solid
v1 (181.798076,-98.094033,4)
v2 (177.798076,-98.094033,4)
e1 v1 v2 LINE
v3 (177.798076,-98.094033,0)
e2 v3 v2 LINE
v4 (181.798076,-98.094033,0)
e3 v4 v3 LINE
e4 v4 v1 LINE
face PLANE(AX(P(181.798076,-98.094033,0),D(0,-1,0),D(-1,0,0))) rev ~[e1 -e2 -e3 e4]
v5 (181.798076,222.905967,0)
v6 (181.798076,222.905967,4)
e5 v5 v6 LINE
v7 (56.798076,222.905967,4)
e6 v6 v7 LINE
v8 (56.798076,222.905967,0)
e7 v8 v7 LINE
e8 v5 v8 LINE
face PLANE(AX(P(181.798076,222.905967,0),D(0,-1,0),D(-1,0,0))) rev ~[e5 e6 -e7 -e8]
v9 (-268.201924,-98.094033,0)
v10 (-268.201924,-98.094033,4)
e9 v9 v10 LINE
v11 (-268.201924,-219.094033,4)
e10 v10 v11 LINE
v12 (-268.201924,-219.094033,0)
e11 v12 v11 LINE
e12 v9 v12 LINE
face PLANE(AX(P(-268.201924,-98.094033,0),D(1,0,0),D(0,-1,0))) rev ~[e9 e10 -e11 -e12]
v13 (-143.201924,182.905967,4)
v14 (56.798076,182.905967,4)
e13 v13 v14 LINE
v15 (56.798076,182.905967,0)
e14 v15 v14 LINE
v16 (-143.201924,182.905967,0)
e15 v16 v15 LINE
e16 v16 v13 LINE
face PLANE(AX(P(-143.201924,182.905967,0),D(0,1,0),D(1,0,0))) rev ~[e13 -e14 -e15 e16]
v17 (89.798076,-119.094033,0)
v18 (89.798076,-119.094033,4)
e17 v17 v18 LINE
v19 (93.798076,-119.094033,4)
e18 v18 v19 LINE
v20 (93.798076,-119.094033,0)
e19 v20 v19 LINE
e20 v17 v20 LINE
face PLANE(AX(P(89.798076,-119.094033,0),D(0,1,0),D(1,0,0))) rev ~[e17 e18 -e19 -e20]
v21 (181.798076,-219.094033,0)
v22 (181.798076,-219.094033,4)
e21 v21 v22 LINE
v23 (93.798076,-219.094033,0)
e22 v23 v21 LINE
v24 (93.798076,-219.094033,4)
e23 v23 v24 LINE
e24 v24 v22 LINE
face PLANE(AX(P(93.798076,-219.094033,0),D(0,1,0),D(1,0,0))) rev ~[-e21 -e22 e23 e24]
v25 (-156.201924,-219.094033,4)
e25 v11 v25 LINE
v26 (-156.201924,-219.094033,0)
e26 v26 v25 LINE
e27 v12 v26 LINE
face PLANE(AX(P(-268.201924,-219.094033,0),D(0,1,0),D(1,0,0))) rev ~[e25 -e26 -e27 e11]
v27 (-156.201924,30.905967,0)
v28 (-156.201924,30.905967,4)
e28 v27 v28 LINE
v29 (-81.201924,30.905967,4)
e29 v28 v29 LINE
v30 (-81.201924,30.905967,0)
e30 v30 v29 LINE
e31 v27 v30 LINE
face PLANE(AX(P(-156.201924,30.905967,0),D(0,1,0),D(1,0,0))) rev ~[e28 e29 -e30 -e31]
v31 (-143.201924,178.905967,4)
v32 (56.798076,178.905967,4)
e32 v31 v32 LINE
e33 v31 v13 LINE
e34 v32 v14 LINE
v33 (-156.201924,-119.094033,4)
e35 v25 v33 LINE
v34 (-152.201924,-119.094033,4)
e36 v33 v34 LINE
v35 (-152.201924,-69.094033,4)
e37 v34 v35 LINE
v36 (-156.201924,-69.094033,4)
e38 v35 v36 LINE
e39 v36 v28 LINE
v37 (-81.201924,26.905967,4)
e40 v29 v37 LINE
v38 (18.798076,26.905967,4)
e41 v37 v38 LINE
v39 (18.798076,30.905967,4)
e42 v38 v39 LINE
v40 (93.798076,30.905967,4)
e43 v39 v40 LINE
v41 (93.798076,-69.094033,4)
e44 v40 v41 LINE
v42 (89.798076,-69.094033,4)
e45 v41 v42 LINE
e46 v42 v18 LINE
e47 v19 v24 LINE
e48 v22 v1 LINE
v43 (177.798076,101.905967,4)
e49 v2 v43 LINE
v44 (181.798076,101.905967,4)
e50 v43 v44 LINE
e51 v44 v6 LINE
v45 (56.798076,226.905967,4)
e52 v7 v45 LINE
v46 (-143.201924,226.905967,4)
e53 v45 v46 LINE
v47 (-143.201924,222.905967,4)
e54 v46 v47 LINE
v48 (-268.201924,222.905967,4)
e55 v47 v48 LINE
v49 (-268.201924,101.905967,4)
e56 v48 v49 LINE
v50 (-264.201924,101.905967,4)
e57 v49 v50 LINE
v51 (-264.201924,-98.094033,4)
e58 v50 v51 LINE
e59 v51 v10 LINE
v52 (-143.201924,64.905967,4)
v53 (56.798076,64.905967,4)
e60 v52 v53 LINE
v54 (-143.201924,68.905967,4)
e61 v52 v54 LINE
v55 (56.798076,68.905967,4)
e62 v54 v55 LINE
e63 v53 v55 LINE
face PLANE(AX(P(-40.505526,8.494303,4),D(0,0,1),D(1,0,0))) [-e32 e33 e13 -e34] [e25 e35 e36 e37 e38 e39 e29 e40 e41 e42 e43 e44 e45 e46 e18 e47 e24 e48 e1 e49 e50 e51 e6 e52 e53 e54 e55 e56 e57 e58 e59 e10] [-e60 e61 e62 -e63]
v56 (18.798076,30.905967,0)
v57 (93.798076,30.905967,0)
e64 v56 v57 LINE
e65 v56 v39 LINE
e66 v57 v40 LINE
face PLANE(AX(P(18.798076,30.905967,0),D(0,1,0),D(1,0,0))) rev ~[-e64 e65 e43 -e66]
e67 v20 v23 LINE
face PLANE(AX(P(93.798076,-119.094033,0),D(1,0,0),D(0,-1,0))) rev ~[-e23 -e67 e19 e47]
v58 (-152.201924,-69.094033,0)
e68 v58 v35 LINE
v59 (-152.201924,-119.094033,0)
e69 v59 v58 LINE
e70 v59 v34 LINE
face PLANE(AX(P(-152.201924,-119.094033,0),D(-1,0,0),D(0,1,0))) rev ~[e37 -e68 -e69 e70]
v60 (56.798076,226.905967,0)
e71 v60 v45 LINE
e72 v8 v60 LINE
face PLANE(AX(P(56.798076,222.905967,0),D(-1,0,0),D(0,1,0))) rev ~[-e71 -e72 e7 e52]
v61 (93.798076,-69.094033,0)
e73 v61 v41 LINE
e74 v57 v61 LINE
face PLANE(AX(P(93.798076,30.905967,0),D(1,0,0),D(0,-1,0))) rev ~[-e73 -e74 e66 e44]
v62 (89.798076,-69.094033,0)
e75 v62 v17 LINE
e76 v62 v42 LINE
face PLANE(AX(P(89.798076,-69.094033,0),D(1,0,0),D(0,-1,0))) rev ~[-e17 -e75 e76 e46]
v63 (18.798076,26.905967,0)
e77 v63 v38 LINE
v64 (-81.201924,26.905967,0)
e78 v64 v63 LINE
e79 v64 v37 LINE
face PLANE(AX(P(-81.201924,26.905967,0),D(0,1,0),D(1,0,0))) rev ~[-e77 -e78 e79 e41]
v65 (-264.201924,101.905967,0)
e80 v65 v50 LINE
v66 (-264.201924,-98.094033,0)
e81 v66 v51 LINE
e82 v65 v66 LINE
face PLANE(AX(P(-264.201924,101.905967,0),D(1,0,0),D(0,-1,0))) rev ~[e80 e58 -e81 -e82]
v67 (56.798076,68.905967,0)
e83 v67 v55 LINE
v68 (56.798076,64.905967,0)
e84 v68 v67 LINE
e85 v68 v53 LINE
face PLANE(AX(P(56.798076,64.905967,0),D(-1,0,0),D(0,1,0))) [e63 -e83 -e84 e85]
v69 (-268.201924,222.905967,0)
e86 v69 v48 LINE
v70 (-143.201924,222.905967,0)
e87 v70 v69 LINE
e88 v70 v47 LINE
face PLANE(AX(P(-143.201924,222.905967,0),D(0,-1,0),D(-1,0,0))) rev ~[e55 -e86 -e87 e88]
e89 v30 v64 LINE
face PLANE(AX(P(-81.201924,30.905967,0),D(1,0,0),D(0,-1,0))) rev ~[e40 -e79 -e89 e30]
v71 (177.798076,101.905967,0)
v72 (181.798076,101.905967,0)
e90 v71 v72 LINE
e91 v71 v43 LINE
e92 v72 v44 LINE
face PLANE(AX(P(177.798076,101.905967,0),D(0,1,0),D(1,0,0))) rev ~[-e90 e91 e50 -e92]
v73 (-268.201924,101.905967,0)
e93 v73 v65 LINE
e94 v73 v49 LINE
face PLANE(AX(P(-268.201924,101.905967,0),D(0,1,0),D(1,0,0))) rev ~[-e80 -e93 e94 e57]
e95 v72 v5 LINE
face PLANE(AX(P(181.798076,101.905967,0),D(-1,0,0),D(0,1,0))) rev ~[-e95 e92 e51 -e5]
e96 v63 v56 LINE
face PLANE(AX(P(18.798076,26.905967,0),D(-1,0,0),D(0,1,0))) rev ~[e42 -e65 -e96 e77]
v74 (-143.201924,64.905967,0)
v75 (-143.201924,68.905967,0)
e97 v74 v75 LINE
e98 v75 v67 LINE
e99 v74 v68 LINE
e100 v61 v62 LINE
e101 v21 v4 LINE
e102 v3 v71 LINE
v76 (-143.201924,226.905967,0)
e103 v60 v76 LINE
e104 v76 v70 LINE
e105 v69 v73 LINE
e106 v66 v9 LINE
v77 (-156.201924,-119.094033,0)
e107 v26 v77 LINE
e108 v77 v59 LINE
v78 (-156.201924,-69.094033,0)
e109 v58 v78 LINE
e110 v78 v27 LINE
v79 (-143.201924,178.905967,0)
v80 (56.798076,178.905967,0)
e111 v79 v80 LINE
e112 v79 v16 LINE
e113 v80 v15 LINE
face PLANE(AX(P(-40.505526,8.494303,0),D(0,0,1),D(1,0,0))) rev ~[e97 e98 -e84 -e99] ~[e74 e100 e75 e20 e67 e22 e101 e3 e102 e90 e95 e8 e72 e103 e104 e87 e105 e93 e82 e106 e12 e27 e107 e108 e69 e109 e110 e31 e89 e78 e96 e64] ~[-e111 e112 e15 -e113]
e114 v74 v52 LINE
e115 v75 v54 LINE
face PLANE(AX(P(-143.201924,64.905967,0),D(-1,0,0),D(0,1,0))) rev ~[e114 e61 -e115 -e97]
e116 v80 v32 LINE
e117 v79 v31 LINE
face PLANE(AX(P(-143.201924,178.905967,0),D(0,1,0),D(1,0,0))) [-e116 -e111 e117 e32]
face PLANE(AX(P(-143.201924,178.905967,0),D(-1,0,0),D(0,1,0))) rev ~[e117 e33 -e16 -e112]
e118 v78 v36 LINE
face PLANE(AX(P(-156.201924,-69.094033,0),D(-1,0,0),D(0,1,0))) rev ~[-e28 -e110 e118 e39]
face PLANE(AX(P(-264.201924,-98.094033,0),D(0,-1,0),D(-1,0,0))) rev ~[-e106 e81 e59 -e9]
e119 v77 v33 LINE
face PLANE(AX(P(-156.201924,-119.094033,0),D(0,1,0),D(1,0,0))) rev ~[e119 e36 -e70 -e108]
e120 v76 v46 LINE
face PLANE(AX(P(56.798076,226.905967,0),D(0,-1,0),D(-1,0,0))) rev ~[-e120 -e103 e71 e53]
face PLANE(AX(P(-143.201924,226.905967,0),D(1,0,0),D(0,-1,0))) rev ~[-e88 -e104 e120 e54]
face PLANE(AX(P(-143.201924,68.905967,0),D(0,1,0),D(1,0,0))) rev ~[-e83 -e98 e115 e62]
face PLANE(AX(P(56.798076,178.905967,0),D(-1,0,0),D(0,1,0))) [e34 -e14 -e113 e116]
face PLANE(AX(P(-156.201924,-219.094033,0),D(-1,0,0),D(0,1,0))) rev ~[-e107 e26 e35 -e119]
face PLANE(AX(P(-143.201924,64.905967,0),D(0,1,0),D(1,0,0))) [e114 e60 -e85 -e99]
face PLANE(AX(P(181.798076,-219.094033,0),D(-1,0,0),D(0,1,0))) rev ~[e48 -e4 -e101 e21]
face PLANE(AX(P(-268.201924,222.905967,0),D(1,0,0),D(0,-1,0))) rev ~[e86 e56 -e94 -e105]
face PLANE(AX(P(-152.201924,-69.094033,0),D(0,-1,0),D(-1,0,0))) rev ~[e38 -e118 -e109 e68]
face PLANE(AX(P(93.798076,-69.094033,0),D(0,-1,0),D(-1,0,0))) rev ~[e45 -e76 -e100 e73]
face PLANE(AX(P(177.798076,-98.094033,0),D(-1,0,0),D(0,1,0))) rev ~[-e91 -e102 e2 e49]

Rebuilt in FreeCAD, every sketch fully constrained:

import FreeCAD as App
import Part
import Sketcher

V = App.Vector

doc = App.newDocument("Part")
body = doc.addObject("PartDesign::Body", "Body")

# Sketch on XY plane
sketch1 = body.newObject("Sketcher::SketchObject", "Sketch")
sketch1.AttachmentSupport = (doc.getObject("XY_Plane"), [""])
sketch1.MapMode = "FlatFace"
sketch1.addGeometry(Part.LineSegment(V(-268.201924, -98.094033, 0), V(-268.201924, -219.094033, 0)), False)
sketch1.addGeometry(Part.LineSegment(V(-268.201924, -219.094033, 0), V(-156.201924, -219.094033, 0)), False)
sketch1.addGeometry(Part.LineSegment(V(-156.201924, -219.094033, 0), V(-156.201924, -119.094033, 0)), False)
sketch1.addGeometry(Part.LineSegment(V(-156.201924, -119.094033, 0), V(-152.201924, -119.094033, 0)), False)
sketch1.addGeometry(Part.LineSegment(V(-152.201924, -119.094033, 0), V(-152.201924, -69.094033, 0)), False)
sketch1.addGeometry(Part.LineSegment(V(-152.201924, -69.094033, 0), V(-156.201924, -69.094033, 0)), False)
sketch1.addGeometry(Part.LineSegment(V(-156.201924, -69.094033, 0), V(-156.201924, 30.905967, 0)), False)
sketch1.addGeometry(Part.LineSegment(V(-156.201924, 30.905967, 0), V(-81.201924, 30.905967, 0)), False)
sketch1.addGeometry(Part.LineSegment(V(-81.201924, 30.905967, 0), V(-81.201924, 26.905967, 0)), False)
sketch1.addGeometry(Part.LineSegment(V(-81.201924, 26.905967, 0), V(18.798076, 26.905967, 0)), False)
sketch1.addGeometry(Part.LineSegment(V(18.798076, 26.905967, 0), V(18.798076, 30.905967, 0)), False)
sketch1.addGeometry(Part.LineSegment(V(18.798076, 30.905967, 0), V(93.798076, 30.905967, 0)), False)
sketch1.addGeometry(Part.LineSegment(V(93.798076, 30.905967, 0), V(93.798076, -69.094033, 0)), False)
sketch1.addGeometry(Part.LineSegment(V(93.798076, -69.094033, 0), V(89.798076, -69.094033, 0)), False)
sketch1.addGeometry(Part.LineSegment(V(89.798076, -69.094033, 0), V(89.798076, -119.094033, 0)), False)
sketch1.addGeometry(Part.LineSegment(V(89.798076, -119.094033, 0), V(93.798076, -119.094033, 0)), False)
sketch1.addGeometry(Part.LineSegment(V(93.798076, -119.094033, 0), V(93.798076, -219.094033, 0)), False)
sketch1.addGeometry(Part.LineSegment(V(93.798076, -219.094033, 0), V(181.798076, -219.094033, 0)), False)
sketch1.addGeometry(Part.LineSegment(V(181.798076, -219.094033, 0), V(181.798076, -98.094033, 0)), False)
sketch1.addGeometry(Part.LineSegment(V(181.798076, -98.094033, 0), V(177.798076, -98.094033, 0)), False)
sketch1.addGeometry(Part.LineSegment(V(177.798076, -98.094033, 0), V(177.798076, 101.905967, 0)), False)
sketch1.addGeometry(Part.LineSegment(V(177.798076, 101.905967, 0), V(181.798076, 101.905967, 0)), False)
sketch1.addGeometry(Part.LineSegment(V(181.798076, 101.905967, 0), V(181.798076, 222.905967, 0)), False)
sketch1.addGeometry(Part.LineSegment(V(181.798076, 222.905967, 0), V(56.798076, 222.905967, 0)), False)
sketch1.addGeometry(Part.LineSegment(V(56.798076, 222.905967, 0), V(56.798076, 226.905967, 0)), False)
sketch1.addGeometry(Part.LineSegment(V(56.798076, 226.905967, 0), V(-143.201924, 226.905967, 0)), False)
sketch1.addGeometry(Part.LineSegment(V(-143.201924, 226.905967, 0), V(-143.201924, 222.905967, 0)), False)
sketch1.addGeometry(Part.LineSegment(V(-143.201924, 222.905967, 0), V(-268.201924, 222.905967, 0)), False)
sketch1.addGeometry(Part.LineSegment(V(-268.201924, 222.905967, 0), V(-268.201924, 101.905967, 0)), False)
sketch1.addGeometry(Part.LineSegment(V(-268.201924, 101.905967, 0), V(-264.201924, 101.905967, 0)), False)
sketch1.addGeometry(Part.LineSegment(V(-264.201924, 101.905967, 0), V(-264.201924, -98.094033, 0)), False)
sketch1.addGeometry(Part.LineSegment(V(-264.201924, -98.094033, 0), V(-268.201924, -98.094033, 0)), False)
sketch1.addGeometry(Part.LineSegment(V(56.798076, 64.905967, 0), V(-143.201924, 64.905967, 0)), False)
sketch1.addGeometry(Part.LineSegment(V(-143.201924, 64.905967, 0), V(-143.201924, 68.905967, 0)), False)
sketch1.addGeometry(Part.LineSegment(V(-143.201924, 68.905967, 0), V(56.798076, 68.905967, 0)), False)
sketch1.addGeometry(Part.LineSegment(V(56.798076, 68.905967, 0), V(56.798076, 64.905967, 0)), False)
sketch1.addGeometry(Part.LineSegment(V(56.798076, 178.905967, 0), V(-143.201924, 178.905967, 0)), False)
sketch1.addGeometry(Part.LineSegment(V(-143.201924, 178.905967, 0), V(-143.201924, 182.905967, 0)), False)
sketch1.addGeometry(Part.LineSegment(V(-143.201924, 182.905967, 0), V(56.798076, 182.905967, 0)), False)
sketch1.addGeometry(Part.LineSegment(V(56.798076, 182.905967, 0), V(56.798076, 178.905967, 0)), False)
sketch1.addConstraint(Sketcher.Constraint("Coincident", 0, 2, 1, 1))
sketch1.addConstraint(Sketcher.Constraint("Coincident", 1, 2, 2, 1))
sketch1.addConstraint(Sketcher.Constraint("Coincident", 2, 2, 3, 1))
sketch1.addConstraint(Sketcher.Constraint("Coincident", 3, 2, 4, 1))
sketch1.addConstraint(Sketcher.Constraint("Coincident", 4, 2, 5, 1))
sketch1.addConstraint(Sketcher.Constraint("Coincident", 5, 2, 6, 1))
sketch1.addConstraint(Sketcher.Constraint("Coincident", 6, 2, 7, 1))
sketch1.addConstraint(Sketcher.Constraint("Coincident", 7, 2, 8, 1))
sketch1.addConstraint(Sketcher.Constraint("Coincident", 8, 2, 9, 1))
sketch1.addConstraint(Sketcher.Constraint("Coincident", 9, 2, 10, 1))
sketch1.addConstraint(Sketcher.Constraint("Coincident", 10, 2, 11, 1))
sketch1.addConstraint(Sketcher.Constraint("Coincident", 11, 2, 12, 1))
sketch1.addConstraint(Sketcher.Constraint("Coincident", 12, 2, 13, 1))
sketch1.addConstraint(Sketcher.Constraint("Coincident", 13, 2, 14, 1))
sketch1.addConstraint(Sketcher.Constraint("Coincident", 14, 2, 15, 1))
sketch1.addConstraint(Sketcher.Constraint("Coincident", 15, 2, 16, 1))
sketch1.addConstraint(Sketcher.Constraint("Coincident", 16, 2, 17, 1))
sketch1.addConstraint(Sketcher.Constraint("Coincident", 17, 2, 18, 1))
sketch1.addConstraint(Sketcher.Constraint("Coincident", 18, 2, 19, 1))
sketch1.addConstraint(Sketcher.Constraint("Coincident", 19, 2, 20, 1))
sketch1.addConstraint(Sketcher.Constraint("Coincident", 20, 2, 21, 1))
sketch1.addConstraint(Sketcher.Constraint("Coincident", 21, 2, 22, 1))
sketch1.addConstraint(Sketcher.Constraint("Coincident", 22, 2, 23, 1))
sketch1.addConstraint(Sketcher.Constraint("Coincident", 23, 2, 24, 1))
sketch1.addConstraint(Sketcher.Constraint("Coincident", 24, 2, 25, 1))
sketch1.addConstraint(Sketcher.Constraint("Coincident", 25, 2, 26, 1))
sketch1.addConstraint(Sketcher.Constraint("Coincident", 26, 2, 27, 1))
sketch1.addConstraint(Sketcher.Constraint("Coincident", 27, 2, 28, 1))
sketch1.addConstraint(Sketcher.Constraint("Coincident", 28, 2, 29, 1))
sketch1.addConstraint(Sketcher.Constraint("Coincident", 29, 2, 30, 1))
sketch1.addConstraint(Sketcher.Constraint("Coincident", 30, 2, 31, 1))
sketch1.addConstraint(Sketcher.Constraint("Coincident", 31, 2, 0, 1))
sketch1.addConstraint(Sketcher.Constraint("Coincident", 32, 2, 33, 1))
sketch1.addConstraint(Sketcher.Constraint("Coincident", 33, 2, 34, 1))
sketch1.addConstraint(Sketcher.Constraint("Coincident", 34, 2, 35, 1))
sketch1.addConstraint(Sketcher.Constraint("Coincident", 35, 2, 32, 1))
sketch1.addConstraint(Sketcher.Constraint("Coincident", 36, 2, 37, 1))
sketch1.addConstraint(Sketcher.Constraint("Coincident", 37, 2, 38, 1))
sketch1.addConstraint(Sketcher.Constraint("Coincident", 38, 2, 39, 1))
sketch1.addConstraint(Sketcher.Constraint("Coincident", 39, 2, 36, 1))
sketch1.addConstraint(Sketcher.Constraint("Vertical", 0))
sketch1.addConstraint(Sketcher.Constraint("Horizontal", 1))
sketch1.addConstraint(Sketcher.Constraint("Vertical", 2))
sketch1.addConstraint(Sketcher.Constraint("Horizontal", 3))
sketch1.addConstraint(Sketcher.Constraint("Vertical", 4))
sketch1.addConstraint(Sketcher.Constraint("Horizontal", 5))
sketch1.addConstraint(Sketcher.Constraint("Vertical", 6))
sketch1.addConstraint(Sketcher.Constraint("Horizontal", 7))
sketch1.addConstraint(Sketcher.Constraint("Vertical", 8))
sketch1.addConstraint(Sketcher.Constraint("Horizontal", 9))
sketch1.addConstraint(Sketcher.Constraint("Vertical", 10))
sketch1.addConstraint(Sketcher.Constraint("Horizontal", 11))
sketch1.addConstraint(Sketcher.Constraint("Vertical", 12))
sketch1.addConstraint(Sketcher.Constraint("Horizontal", 13))
sketch1.addConstraint(Sketcher.Constraint("Vertical", 14))
sketch1.addConstraint(Sketcher.Constraint("Horizontal", 15))
sketch1.addConstraint(Sketcher.Constraint("Vertical", 16))
sketch1.addConstraint(Sketcher.Constraint("Horizontal", 17))
sketch1.addConstraint(Sketcher.Constraint("Vertical", 18))
sketch1.addConstraint(Sketcher.Constraint("Horizontal", 19))
sketch1.addConstraint(Sketcher.Constraint("Vertical", 20))
sketch1.addConstraint(Sketcher.Constraint("Horizontal", 21))
sketch1.addConstraint(Sketcher.Constraint("Vertical", 22))
sketch1.addConstraint(Sketcher.Constraint("Horizontal", 23))
sketch1.addConstraint(Sketcher.Constraint("Vertical", 24))
sketch1.addConstraint(Sketcher.Constraint("Horizontal", 25))
sketch1.addConstraint(Sketcher.Constraint("Vertical", 26))
sketch1.addConstraint(Sketcher.Constraint("Horizontal", 27))
sketch1.addConstraint(Sketcher.Constraint("Vertical", 28))
sketch1.addConstraint(Sketcher.Constraint("Horizontal", 29))
sketch1.addConstraint(Sketcher.Constraint("Vertical", 30))
sketch1.addConstraint(Sketcher.Constraint("Horizontal", 31))
sketch1.addConstraint(Sketcher.Constraint("Horizontal", 32))
sketch1.addConstraint(Sketcher.Constraint("Vertical", 33))
sketch1.addConstraint(Sketcher.Constraint("Horizontal", 34))
sketch1.addConstraint(Sketcher.Constraint("Vertical", 35))
sketch1.addConstraint(Sketcher.Constraint("Horizontal", 36))
sketch1.addConstraint(Sketcher.Constraint("Vertical", 37))
sketch1.addConstraint(Sketcher.Constraint("Horizontal", 38))
sketch1.addConstraint(Sketcher.Constraint("Vertical", 39))
sketch1.addConstraint(Sketcher.Constraint("Horizontal", 7, 2, 10, 2))
sketch1.addConstraint(Sketcher.Constraint("Horizontal", 5, 2, 12, 2))
sketch1.addConstraint(Sketcher.Constraint("Horizontal", 3, 2, 14, 2))
sketch1.addConstraint(Sketcher.Constraint("Horizontal", 1, 2, 16, 2))
sketch1.addConstraint(Sketcher.Constraint("Horizontal", 23, 2, 26, 2))
sketch1.addConstraint(Sketcher.Constraint("Horizontal", 21, 2, 28, 2))
sketch1.addConstraint(Sketcher.Constraint("Horizontal", 19, 2, 30, 2))
sketch1.addConstraint(Sketcher.Constraint("Vertical", 2, 2, 5, 2))
sketch1.addConstraint(Sketcher.Constraint("Vertical", 12, 2, 15, 2))
sketch1.addConstraint(Sketcher.Constraint("Vertical", 18, 2, 21, 2))
sketch1.addConstraint(Sketcher.Constraint("Vertical", 0, 2, 27, 2))
sketch1.addConstraint(Sketcher.Constraint("Vertical", 26, 2, 32, 2))
sketch1.addConstraint(Sketcher.Constraint("Vertical", 24, 2, 34, 2))
sketch1.addConstraint(Sketcher.Constraint("Vertical", 33, 2, 36, 2))
sketch1.addConstraint(Sketcher.Constraint("Vertical", 35, 2, 38, 2))
sketch1.addConstraint(Sketcher.Constraint("Equal", 7, 11))
sketch1.addConstraint(Sketcher.Constraint("Equal", 5, 13))
sketch1.addConstraint(Sketcher.Constraint("Equal", 15, 19))
sketch1.addConstraint(Sketcher.Constraint("Equal", 23, 27))
sketch1.addConstraint(Sketcher.Constraint("Equal", 21, 29))
sketch1.addConstraint(Sketcher.Constraint("Equal", 9, 2))
sketch1.addConstraint(Sketcher.Constraint("Equal", 2, 6))
sketch1.addConstraint(Sketcher.Constraint("Equal", 31, 8))
sketch1.addConstraint(Sketcher.Constraint("Equal", 38, 20))
sketch1.addConstraint(Sketcher.Constraint("Equal", 18, 22))
sketch1.addConstraint(Sketcher.Constraint("Equal", 10, 24))
sketch1.addConstraint(Sketcher.Constraint("Equal", 26, 33))
sketch1.addConstraint(Sketcher.Constraint("Equal", 35, 37))
sketch1.addConstraint(Sketcher.Constraint("DistanceX", 1, 1, 1, 2, 112.0))
sketch1.addConstraint(Sketcher.Constraint("DistanceX", 3, 1, 3, 2, 4.0))
sketch1.addConstraint(Sketcher.Constraint("DistanceX", 7, 1, 7, 2, 75.0))
sketch1.addConstraint(Sketcher.Constraint("DistanceX", 9, 1, 9, 2, 100.0))
sketch1.addConstraint(Sketcher.Constraint("DistanceX", 17, 1, 17, 2, 88.0))
sketch1.addConstraint(Sketcher.Constraint("DistanceX", 23, 2, 23, 1, 125.0))
sketch1.addConstraint(Sketcher.Constraint("DistanceY", 0, 2, 0, 1, 121.0))
sketch1.addConstraint(Sketcher.Constraint("DistanceY", 4, 1, 4, 2, 50.0))
sketch1.addConstraint(Sketcher.Constraint("DistanceY", 6, 2, 32, 2, 34.0))
sketch1.addConstraint(Sketcher.Constraint("DistanceY", 36, 2, 26, 2, 44.0))
sketch1.addConstraint(Sketcher.Constraint("DistanceX", 0, 2, -1, 1, 268.201924))
sketch1.addConstraint(Sketcher.Constraint("DistanceY", 0, 2, -1, 1, 219.094033))
pad1 = body.newObject("PartDesign::Pad", "Pad")
pad1.Profile = sketch1
pad1.Length = 4

doc.recompute()
